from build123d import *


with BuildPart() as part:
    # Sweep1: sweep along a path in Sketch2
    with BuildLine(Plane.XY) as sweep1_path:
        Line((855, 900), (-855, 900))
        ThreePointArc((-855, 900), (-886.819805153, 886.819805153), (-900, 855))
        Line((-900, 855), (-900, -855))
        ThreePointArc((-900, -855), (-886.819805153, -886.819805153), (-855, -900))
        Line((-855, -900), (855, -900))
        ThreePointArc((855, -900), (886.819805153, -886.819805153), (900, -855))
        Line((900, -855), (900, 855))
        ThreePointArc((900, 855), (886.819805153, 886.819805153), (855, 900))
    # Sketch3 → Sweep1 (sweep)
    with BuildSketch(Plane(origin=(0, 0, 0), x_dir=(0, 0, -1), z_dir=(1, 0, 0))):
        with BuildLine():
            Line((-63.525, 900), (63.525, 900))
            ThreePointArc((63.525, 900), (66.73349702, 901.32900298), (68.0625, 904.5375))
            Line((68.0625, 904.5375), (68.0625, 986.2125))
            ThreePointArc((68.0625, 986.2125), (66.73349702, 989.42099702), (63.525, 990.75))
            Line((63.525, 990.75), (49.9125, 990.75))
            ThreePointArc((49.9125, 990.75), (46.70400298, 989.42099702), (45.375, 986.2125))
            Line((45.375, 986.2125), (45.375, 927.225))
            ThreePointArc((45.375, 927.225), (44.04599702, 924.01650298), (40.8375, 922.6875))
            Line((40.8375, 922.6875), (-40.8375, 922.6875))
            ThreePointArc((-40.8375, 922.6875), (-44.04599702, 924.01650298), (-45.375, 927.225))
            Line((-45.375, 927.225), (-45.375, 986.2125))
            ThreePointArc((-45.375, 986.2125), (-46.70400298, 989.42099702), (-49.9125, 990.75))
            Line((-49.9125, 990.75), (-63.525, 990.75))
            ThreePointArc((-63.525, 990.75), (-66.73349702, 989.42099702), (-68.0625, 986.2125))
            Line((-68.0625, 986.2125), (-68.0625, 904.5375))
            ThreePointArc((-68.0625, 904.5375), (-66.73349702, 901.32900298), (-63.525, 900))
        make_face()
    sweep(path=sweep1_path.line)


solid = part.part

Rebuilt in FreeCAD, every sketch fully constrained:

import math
import FreeCAD as App
import Part
import Sketcher
from FreeCAD import Vector

doc = App.newDocument("Part")
params = doc.addObject("Spreadsheet::Sheet", "Params")
for row, (alias, value) in enumerate([
    ("sketch1_height", "127.05 mm"),
    ("sketch2_radius", "45 mm"),
    ("sketch2_width", "1710 mm"),
], start=1):
    params.set(f"A{row}", alias)
    params.set(f"B{row}", "=" + value)
    params.setAlias(f"B{row}", alias)

body = doc.addObject("PartDesign::Body", "Body")

# Sketch on YZ plane
sketch1 = body.newObject("Sketcher::SketchObject", "Sketch")
sketch1.AttachmentSupport = (doc.getObject("YZ_Plane"), [""])
sketch1.MapMode = "FlatFace"
sketch1.addGeometry([
    Part.LineSegment(Vector(900, 63.5, 0), Vector(900, -63.5, 0)),  # 0
    Part.ArcOfCircle(Part.Circle(Vector(904.5, -63.5, 0), Vector(0, 0, 1), 4.5), math.radians(180), math.radians(270)),  # 1
    Part.LineSegment(Vector(904.5, -68.1, 0), Vector(986.2, -68.1, 0)),  # 2
    Part.ArcOfCircle(Part.Circle(Vector(986.2, -63.5, 0), Vector(0, 0, 1), 4.5), math.radians(-90), math.radians(0)),  # 3
    Part.LineSegment(Vector(990.8, -63.5, 0), Vector(990.8, -49.9, 0)),  # 4
    Part.ArcOfCircle(Part.Circle(Vector(986.2, -49.9, 0), Vector(0, 0, 1), 4.5), math.radians(0), math.radians(90)),  # 5
    Part.LineSegment(Vector(986.2, -45.4, 0), Vector(927.2, -45.4, 0)),  # 6
    Part.ArcOfCircle(Part.Circle(Vector(927.2, -40.8, 0), Vector(0, 0, 1), 4.5), math.radians(180), math.radians(270)),  # 7
    Part.LineSegment(Vector(922.7, -40.8, 0), Vector(922.7, 40.8, 0)),  # 8
    Part.ArcOfCircle(Part.Circle(Vector(927.2, 40.8, 0), Vector(0, 0, 1), 4.5), math.radians(90), math.radians(180)),  # 9
    Part.LineSegment(Vector(927.2, 45.4, 0), Vector(986.2, 45.4, 0)),  # 10
    Part.ArcOfCircle(Part.Circle(Vector(986.2, 49.9, 0), Vector(0, 0, 1), 4.5), math.radians(-90), math.radians(0)),  # 11
    Part.LineSegment(Vector(990.8, 49.9, 0), Vector(990.8, 63.5, 0)),  # 12
    Part.ArcOfCircle(Part.Circle(Vector(986.2, 63.5, 0), Vector(0, 0, 1), 4.5), math.radians(0), math.radians(90)),  # 13
    Part.LineSegment(Vector(986.2, 68.1, 0), Vector(904.5, 68.1, 0)),  # 14
    Part.ArcOfCircle(Part.Circle(Vector(904.5, 63.5, 0), Vector(0, 0, 1), 4.5), math.radians(90), math.radians(180)),  # 15
], False)
sketch1.addConstraint([
    Sketcher.Constraint("Tangent", 0, 2, 1, 1),
    Sketcher.Constraint("Tangent", 1, 2, 2, 1),
    Sketcher.Constraint("Tangent", 2, 2, 3, 1),
    Sketcher.Constraint("Tangent", 3, 2, 4, 1),
    Sketcher.Constraint("Tangent", 4, 2, 5, 1),
    Sketcher.Constraint("Tangent", 5, 2, 6, 1),
    Sketcher.Constraint("Tangent", 6, 2, 7, 2),
    Sketcher.Constraint("Tangent", 7, 1, 8, 1),
    Sketcher.Constraint("Tangent", 8, 2, 9, 2),
    Sketcher.Constraint("Tangent", 9, 1, 10, 1),
    Sketcher.Constraint("Tangent", 10, 2, 11, 1),
    Sketcher.Constraint("Tangent", 11, 2, 12, 1),
    Sketcher.Constraint("Tangent", 12, 2, 13, 1),
    Sketcher.Constraint("Tangent", 13, 2, 14, 1),
    Sketcher.Constraint("Tangent", 14, 2, 15, 1),
    Sketcher.Constraint("Tangent", 15, 2, 0, 1),
    Sketcher.Constraint("Vertical", 0),
    Sketcher.Constraint("Horizontal", 2),
    Sketcher.Constraint("Vertical", 4),
    Sketcher.Constraint("Horizontal", 6),
    Sketcher.Constraint("Vertical", 8),
    Sketcher.Constraint("Horizontal", 10),
    Sketcher.Constraint("Vertical", 12),
    Sketcher.Constraint("Horizontal", 14),
    Sketcher.Constraint("Equal", 1, 3),
    Sketcher.Constraint("Equal", 3, 5),
    Sketcher.Constraint("Equal", 5, 7),
    Sketcher.Constraint("Equal", 7, 9),
    Sketcher.Constraint("Equal", 9, 11),
    Sketcher.Constraint("Equal", 11, 13),
    Sketcher.Constraint("Equal", 13, 15),
    Sketcher.Constraint("Symmetric", 5, 3, 11, 3, -1),
    Sketcher.Constraint("Equal", 14, 8),
    Sketcher.Constraint("Equal", 4, 12),
    Sketcher.Constraint("DistanceX", -1, 1, 0, 2, 900.0),
    Sketcher.Constraint("DistanceY", 0, 2, 0, 1, 127.05),
    Sketcher.Constraint("Radius", 1, 4.5375),
    Sketcher.Constraint("DistanceX", 2, 1, 2, 2, 81.675),
    Sketcher.Constraint("DistanceX", 1, 3, 7, 1, 18.15),
])
sketch1.setExpression("Constraints[35]", "Params.sketch1_height")

# Sketch on XY plane
sketch2 = body.newObject("Sketcher::SketchObject", "Sketch001")
sketch2.AttachmentSupport = (doc.getObject("XY_Plane"), [""])
sketch2.MapMode = "FlatFace"
sketch2.addGeometry([
    Part.LineSegment(Vector(855, 900, 0), Vector(-855, 900, 0)),  # 0
    Part.ArcOfCircle(Part.Circle(Vector(-855, 855, 0), Vector(0, 0, 1), 45), math.radians(90), math.radians(180)),  # 1
    Part.LineSegment(Vector(-900, 855, 0), Vector(-900, -855, 0)),  # 2
    Part.ArcOfCircle(Part.Circle(Vector(-855, -855, 0), Vector(0, 0, 1), 45), math.radians(-180), math.radians(-90)),  # 3
    Part.LineSegment(Vector(-855, -900, 0), Vector(855, -900, 0)),  # 4
    Part.ArcOfCircle(Part.Circle(Vector(855, -855, 0), Vector(0, 0, 1), 45), math.radians(-90), math.radians(0)),  # 5
    Part.LineSegment(Vector(900, -855, 0), Vector(900, 855, 0)),  # 6
    Part.ArcOfCircle(Part.Circle(Vector(855, 855, 0), Vector(0, 0, 1), 45), math.radians(0), math.radians(90)),  # 7
], False)
sketch2.addConstraint([
    Sketcher.Constraint("Tangent", 0, 2, 1, 1),
    Sketcher.Constraint("Tangent", 1, 2, 2, 1),
    Sketcher.Constraint("Tangent", 2, 2, 3, 1),
    Sketcher.Constraint("Tangent", 3, 2, 4, 1),
    Sketcher.Constraint("Tangent", 4, 2, 5, 1),
    Sketcher.Constraint("Tangent", 5, 2, 6, 1),
    Sketcher.Constraint("Tangent", 6, 2, 7, 1),
    Sketcher.Constraint("Tangent", 7, 2, 0, 1),
    Sketcher.Constraint("Horizontal", 0),
    Sketcher.Constraint("Vertical", 2),
    Sketcher.Constraint("Horizontal", 4),
    Sketcher.Constraint("Vertical", 6),
    Sketcher.Constraint("Equal", 1, 3),
    Sketcher.Constraint("Equal", 3, 5),
    Sketcher.Constraint("Equal", 5, 7),
    Sketcher.Constraint("Symmetric", 1, 3, 5, 3, -1, 1),
    Sketcher.Constraint("Equal", 4, 2),
    Sketcher.Constraint("Radius", 1, 45.0),
    Sketcher.Constraint("DistanceX", 0, 2, 0, 1, 1710.0),
])
sketch2.setExpression("Constraints[17]", "Params.sketch2_radius")
sketch2.setExpression("Constraints[18]", "Params.sketch2_width")
doc.recompute()

additivepipe = body.newObject("PartDesign::AdditivePipe", "AdditivePipe")
additivepipe.Profile = sketch1
additivepipe.Spine = (sketch2, ["Edge1", "Edge2", "Edge3", "Edge4", "Edge5", "Edge6", "Edge7", "Edge8"])

doc.recompute()
